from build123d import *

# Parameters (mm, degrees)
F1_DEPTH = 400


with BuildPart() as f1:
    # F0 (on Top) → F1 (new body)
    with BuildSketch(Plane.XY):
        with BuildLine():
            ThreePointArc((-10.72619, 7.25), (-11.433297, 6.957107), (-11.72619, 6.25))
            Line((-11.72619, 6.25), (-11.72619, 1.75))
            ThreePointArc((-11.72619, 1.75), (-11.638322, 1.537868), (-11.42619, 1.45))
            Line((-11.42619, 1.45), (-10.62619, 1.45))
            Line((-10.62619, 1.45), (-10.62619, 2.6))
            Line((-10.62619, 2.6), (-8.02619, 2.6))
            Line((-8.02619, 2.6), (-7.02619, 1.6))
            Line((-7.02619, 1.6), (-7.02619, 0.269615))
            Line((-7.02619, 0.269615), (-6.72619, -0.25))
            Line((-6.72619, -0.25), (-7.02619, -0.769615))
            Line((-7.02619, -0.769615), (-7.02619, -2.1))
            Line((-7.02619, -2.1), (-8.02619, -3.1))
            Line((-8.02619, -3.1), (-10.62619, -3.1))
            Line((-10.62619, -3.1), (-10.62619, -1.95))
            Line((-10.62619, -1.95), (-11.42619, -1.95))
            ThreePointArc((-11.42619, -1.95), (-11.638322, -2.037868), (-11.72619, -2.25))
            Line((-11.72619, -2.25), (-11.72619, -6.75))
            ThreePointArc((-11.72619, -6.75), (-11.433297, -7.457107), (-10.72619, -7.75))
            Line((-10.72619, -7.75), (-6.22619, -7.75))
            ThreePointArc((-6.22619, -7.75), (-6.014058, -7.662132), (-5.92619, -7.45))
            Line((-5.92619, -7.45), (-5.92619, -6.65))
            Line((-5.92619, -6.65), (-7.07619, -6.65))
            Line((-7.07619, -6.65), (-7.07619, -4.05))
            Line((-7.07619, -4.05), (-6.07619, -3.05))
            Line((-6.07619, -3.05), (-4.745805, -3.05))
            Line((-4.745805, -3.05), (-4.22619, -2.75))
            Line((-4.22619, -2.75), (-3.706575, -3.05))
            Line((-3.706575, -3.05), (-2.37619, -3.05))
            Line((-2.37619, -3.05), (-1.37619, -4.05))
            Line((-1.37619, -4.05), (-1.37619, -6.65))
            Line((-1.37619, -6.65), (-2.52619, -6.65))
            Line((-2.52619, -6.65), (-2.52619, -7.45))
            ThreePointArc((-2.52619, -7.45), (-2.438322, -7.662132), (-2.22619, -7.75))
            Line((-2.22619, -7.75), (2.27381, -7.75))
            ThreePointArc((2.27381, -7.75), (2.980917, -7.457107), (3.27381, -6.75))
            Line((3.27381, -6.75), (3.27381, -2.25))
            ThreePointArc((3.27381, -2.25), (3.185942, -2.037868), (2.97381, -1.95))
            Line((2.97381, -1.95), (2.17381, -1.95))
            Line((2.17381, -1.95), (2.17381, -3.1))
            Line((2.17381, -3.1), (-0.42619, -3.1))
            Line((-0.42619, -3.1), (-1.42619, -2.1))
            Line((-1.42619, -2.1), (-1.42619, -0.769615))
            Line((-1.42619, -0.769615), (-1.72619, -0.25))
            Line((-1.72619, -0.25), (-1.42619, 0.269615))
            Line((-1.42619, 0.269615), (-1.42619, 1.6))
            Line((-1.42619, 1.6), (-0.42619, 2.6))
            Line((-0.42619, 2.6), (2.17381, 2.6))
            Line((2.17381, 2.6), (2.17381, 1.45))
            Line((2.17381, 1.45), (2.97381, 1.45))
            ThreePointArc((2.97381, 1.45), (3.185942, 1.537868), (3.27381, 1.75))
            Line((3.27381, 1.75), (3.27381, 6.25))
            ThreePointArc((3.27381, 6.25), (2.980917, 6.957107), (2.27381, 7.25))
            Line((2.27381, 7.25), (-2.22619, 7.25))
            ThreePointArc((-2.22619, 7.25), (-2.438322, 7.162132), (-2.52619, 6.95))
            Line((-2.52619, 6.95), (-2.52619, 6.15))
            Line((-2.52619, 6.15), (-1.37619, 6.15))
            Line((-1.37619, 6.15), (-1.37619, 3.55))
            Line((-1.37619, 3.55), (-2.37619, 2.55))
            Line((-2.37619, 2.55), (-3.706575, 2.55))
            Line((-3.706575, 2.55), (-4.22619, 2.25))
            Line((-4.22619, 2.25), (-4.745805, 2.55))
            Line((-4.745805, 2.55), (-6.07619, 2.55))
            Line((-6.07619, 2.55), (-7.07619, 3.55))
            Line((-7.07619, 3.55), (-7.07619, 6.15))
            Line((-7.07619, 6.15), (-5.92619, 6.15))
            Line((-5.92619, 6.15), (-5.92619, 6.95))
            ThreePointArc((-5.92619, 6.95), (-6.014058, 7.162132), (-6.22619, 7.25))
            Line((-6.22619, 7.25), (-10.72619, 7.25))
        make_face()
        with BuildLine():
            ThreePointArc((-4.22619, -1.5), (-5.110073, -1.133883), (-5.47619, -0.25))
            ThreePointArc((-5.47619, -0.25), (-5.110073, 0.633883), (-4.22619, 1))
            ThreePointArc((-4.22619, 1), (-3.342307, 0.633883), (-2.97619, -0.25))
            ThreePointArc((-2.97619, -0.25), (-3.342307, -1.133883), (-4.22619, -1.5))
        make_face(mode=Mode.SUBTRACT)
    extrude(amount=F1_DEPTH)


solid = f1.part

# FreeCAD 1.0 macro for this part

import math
import FreeCAD as App
import Part
import Sketcher
Q = App.Units.Quantity

doc = App.newDocument("Part")
body = doc.addObject("PartDesign::Body", "Body")

# Sketch on XY plane
sketch1 = doc.addObject("Sketcher::SketchObject", "Sketch")
body.addObject(sketch1)
sketch1.AttachmentSupport = (doc.XY_Plane, [""])
sketch1.MapMode = "FlatFace"
sketch1.addGeometry([
    Part.ArcOfCircle(Part.Circle(App.Vector(-10.726191, 6.250001, 0), App.Vector(0, 0, 1), 0.999999), math.radians(89.999957), math.radians(180.000043)),  # 0
    Part.LineSegment(App.Vector(-11.72619, 6.25, 0), App.Vector(-11.72619, 1.75, 0)),  # 1
    Part.ArcOfCircle(Part.Circle(App.Vector(-11.42619, 1.75, 0), App.Vector(0, 0, 1), 0.3), math.radians(-179.999978), math.radians(-90.000022)),  # 2
    Part.LineSegment(App.Vector(-11.42619, 1.45, 0), App.Vector(-10.62619, 1.45, 0)),  # 3
    Part.LineSegment(App.Vector(-10.62619, 1.45, 0), App.Vector(-10.62619, 2.6, 0)),  # 4
    Part.LineSegment(App.Vector(-10.62619, 2.6, 0), App.Vector(-8.02619, 2.6, 0)),  # 5
    Part.LineSegment(App.Vector(-8.02619, 2.6, 0), App.Vector(-7.02619, 1.6, 0)),  # 6
    Part.LineSegment(App.Vector(-7.02619, 1.6, 0), App.Vector(-7.02619, 0.269615, 0)),  # 7
    Part.LineSegment(App.Vector(-7.02619, 0.269615, 0), App.Vector(-6.72619, -0.25, 0)),  # 8
    Part.LineSegment(App.Vector(-6.72619, -0.25, 0), App.Vector(-7.02619, -0.769615, 0)),  # 9
    Part.LineSegment(App.Vector(-7.02619, -0.769615, 0), App.Vector(-7.02619, -2.1, 0)),  # 10
    Part.LineSegment(App.Vector(-7.02619, -2.1, 0), App.Vector(-8.02619, -3.1, 0)),  # 11
    Part.LineSegment(App.Vector(-8.02619, -3.1, 0), App.Vector(-10.62619, -3.1, 0)),  # 12
    Part.LineSegment(App.Vector(-10.62619, -3.1, 0), App.Vector(-10.62619, -1.95, 0)),  # 13
    Part.LineSegment(App.Vector(-10.62619, -1.95, 0), App.Vector(-11.42619, -1.95, 0)),  # 14
    Part.ArcOfCircle(Part.Circle(App.Vector(-11.42619, -2.25, 0), App.Vector(0, 0, 1), 0.3), math.radians(90.000022), math.radians(179.999978)),  # 15
    Part.LineSegment(App.Vector(-11.72619, -2.25, 0), App.Vector(-11.72619, -6.75, 0)),  # 16
    Part.ArcOfCircle(Part.Circle(App.Vector(-10.726191, -6.750001, 0), App.Vector(0, 0, 1), 0.999999), math.radians(179.999957), math.radians(270.000043)),  # 17
    Part.LineSegment(App.Vector(-10.72619, -7.75, 0), App.Vector(-6.22619, -7.75, 0)),  # 18
    Part.ArcOfCircle(Part.Circle(App.Vector(-6.22619, -7.45, 0), App.Vector(0, 0, 1), 0.3), math.radians(-89.999978), math.radians(-0.000022)),  # 19
    Part.LineSegment(App.Vector(-5.92619, -7.45, 0), App.Vector(-5.92619, -6.65, 0)),  # 20
    Part.LineSegment(App.Vector(-5.92619, -6.65, 0), App.Vector(-7.07619, -6.65, 0)),  # 21
    Part.LineSegment(App.Vector(-7.07619, -6.65, 0), App.Vector(-7.07619, -4.05, 0)),  # 22
    Part.LineSegment(App.Vector(-7.07619, -4.05, 0), App.Vector(-6.07619, -3.05, 0)),  # 23
    Part.LineSegment(App.Vector(-6.07619, -3.05, 0), App.Vector(-4.745805, -3.05, 0)),  # 24
    Part.LineSegment(App.Vector(-4.745805, -3.05, 0), App.Vector(-4.22619, -2.75, 0)),  # 25
    Part.LineSegment(App.Vector(-4.22619, -2.75, 0), App.Vector(-3.706575, -3.05, 0)),  # 26
    Part.LineSegment(App.Vector(-3.706575, -3.05, 0), App.Vector(-2.37619, -3.05, 0)),  # 27
    Part.LineSegment(App.Vector(-2.37619, -3.05, 0), App.Vector(-1.37619, -4.05, 0)),  # 28
    Part.LineSegment(App.Vector(-1.37619, -4.05, 0), App.Vector(-1.37619, -6.65, 0)),  # 29
    Part.LineSegment(App.Vector(-1.37619, -6.65, 0), App.Vector(-2.52619, -6.65, 0)),  # 30
    Part.LineSegment(App.Vector(-2.52619, -6.65, 0), App.Vector(-2.52619, -7.45, 0)),  # 31
    Part.ArcOfCircle(Part.Circle(App.Vector(-2.22619, -7.45, 0), App.Vector(0, 0, 1), 0.3), math.radians(-179.999978), math.radians(-90.000022)),  # 32
    Part.LineSegment(App.Vector(-2.22619, -7.75, 0), App.Vector(2.27381, -7.75, 0)),  # 33
    Part.ArcOfCircle(Part.Circle(App.Vector(2.273811, -6.750001, 0), App.Vector(0, 0, 1), 0.999999), math.radians(-90.000043), math.radians(0.000043)),  # 34
    Part.LineSegment(App.Vector(3.27381, -6.75, 0), App.Vector(3.27381, -2.25, 0)),  # 35
    Part.ArcOfCircle(Part.Circle(App.Vector(2.97381, -2.25, 0), App.Vector(0, 0, 1), 0.3), math.radians(0.000022), math.radians(89.999978)),  # 36
    Part.LineSegment(App.Vector(2.97381, -1.95, 0), App.Vector(2.17381, -1.95, 0)),  # 37
    Part.LineSegment(App.Vector(2.17381, -1.95, 0), App.Vector(2.17381, -3.1, 0)),  # 38
    Part.LineSegment(App.Vector(2.17381, -3.1, 0), App.Vector(-0.42619, -3.1, 0)),  # 39
    Part.LineSegment(App.Vector(-0.42619, -3.1, 0), App.Vector(-1.42619, -2.1, 0)),  # 40
    Part.LineSegment(App.Vector(-1.42619, -2.1, 0), App.Vector(-1.42619, -0.769615, 0)),  # 41
    Part.LineSegment(App.Vector(-1.42619, -0.769615, 0), App.Vector(-1.72619, -0.25, 0)),  # 42
    Part.LineSegment(App.Vector(-1.72619, -0.25, 0), App.Vector(-1.42619, 0.269615, 0)),  # 43
    Part.LineSegment(App.Vector(-1.42619, 0.269615, 0), App.Vector(-1.42619, 1.6, 0)),  # 44
    Part.LineSegment(App.Vector(-1.42619, 1.6, 0), App.Vector(-0.42619, 2.6, 0)),  # 45
    Part.LineSegment(App.Vector(-0.42619, 2.6, 0), App.Vector(2.17381, 2.6, 0)),  # 46
    Part.LineSegment(App.Vector(2.17381, 2.6, 0), App.Vector(2.17381, 1.45, 0)),  # 47
    Part.LineSegment(App.Vector(2.17381, 1.45, 0), App.Vector(2.97381, 1.45, 0)),  # 48
    Part.ArcOfCircle(Part.Circle(App.Vector(2.97381, 1.75, 0), App.Vector(0, 0, 1), 0.3), math.radians(-89.999978), math.radians(-0.000022)),  # 49
    Part.LineSegment(App.Vector(3.27381, 1.75, 0), App.Vector(3.27381, 6.25, 0)),  # 50
    Part.ArcOfCircle(Part.Circle(App.Vector(2.273811, 6.250001, 0), App.Vector(0, 0, 1), 0.999999), math.radians(-0.000043), math.radians(90.000043)),  # 51
    Part.LineSegment(App.Vector(2.27381, 7.25, 0), App.Vector(-2.22619, 7.25, 0)),  # 52
    Part.ArcOfCircle(Part.Circle(App.Vector(-2.22619, 6.95, 0), App.Vector(0, 0, 1), 0.3), math.radians(90.000022), math.radians(179.999978)),  # 53
    Part.LineSegment(App.Vector(-2.52619, 6.95, 0), App.Vector(-2.52619, 6.15, 0)),  # 54
    Part.LineSegment(App.Vector(-2.52619, 6.15, 0), App.Vector(-1.37619, 6.15, 0)),  # 55
    Part.LineSegment(App.Vector(-1.37619, 6.15, 0), App.Vector(-1.37619, 3.55, 0)),  # 56
    Part.LineSegment(App.Vector(-1.37619, 3.55, 0), App.Vector(-2.37619, 2.55, 0)),  # 57
    Part.LineSegment(App.Vector(-2.37619, 2.55, 0), App.Vector(-3.706575, 2.55, 0)),  # 58
    Part.LineSegment(App.Vector(-3.706575, 2.55, 0), App.Vector(-4.22619, 2.25, 0)),  # 59
    Part.LineSegment(App.Vector(-4.22619, 2.25, 0), App.Vector(-4.745805, 2.55, 0)),  # 60
    Part.LineSegment(App.Vector(-4.745805, 2.55, 0), App.Vector(-6.07619, 2.55, 0)),  # 61
    Part.LineSegment(App.Vector(-6.07619, 2.55, 0), App.Vector(-7.07619, 3.55, 0)),  # 62
    Part.LineSegment(App.Vector(-7.07619, 3.55, 0), App.Vector(-7.07619, 6.15, 0)),  # 63
    Part.LineSegment(App.Vector(-7.07619, 6.15, 0), App.Vector(-5.92619, 6.15, 0)),  # 64
    Part.LineSegment(App.Vector(-5.92619, 6.15, 0), App.Vector(-5.92619, 6.95, 0)),  # 65
    Part.ArcOfCircle(Part.Circle(App.Vector(-6.22619, 6.95, 0), App.Vector(0, 0, 1), 0.3), math.radians(0.000022), math.radians(89.999978)),  # 66
    Part.LineSegment(App.Vector(-6.22619, 7.25, 0), App.Vector(-10.72619, 7.25, 0)),  # 67
    Part.ArcOfCircle(Part.Circle(App.Vector(-4.226192, -0.249998, 0), App.Vector(0, 0, 1), 1.250002), math.radians(-89.999925), math.radians(-0.000075)),  # 68
    Part.ArcOfCircle(Part.Circle(App.Vector(-4.226188, -0.249998, 0), App.Vector(0, 0, 1), 1.250002), math.radians(-179.999925), math.radians(-90.000075)),  # 69
    Part.ArcOfCircle(Part.Circle(App.Vector(-4.226188, -0.250002, 0), App.Vector(0, 0, 1), 1.250002), math.radians(90.000075), math.radians(179.999925)),  # 70
    Part.ArcOfCircle(Part.Circle(App.Vector(-4.226192, -0.250002, 0), App.Vector(0, 0, 1), 1.250002), math.radians(0.000075), math.radians(89.999925)),  # 71
], False)
sketch1.addConstraint([
    Sketcher.Constraint("Tangent", 0, 2, 1, 1),
    Sketcher.Constraint("Tangent", 1, 2, 2, 1),
    Sketcher.Constraint("Tangent", 2, 2, 3, 1),
    Sketcher.Constraint("Coincident", 3, 2, 4, 1),
    Sketcher.Constraint("Coincident", 4, 2, 5, 1),
    Sketcher.Constraint("Coincident", 5, 2, 6, 1),
    Sketcher.Constraint("Coincident", 6, 2, 7, 1),
    Sketcher.Constraint("Coincident", 7, 2, 8, 1),
    Sketcher.Constraint("Coincident", 8, 2, 9, 1),
    Sketcher.Constraint("Coincident", 9, 2, 10, 1),
    Sketcher.Constraint("Coincident", 10, 2, 11, 1),
    Sketcher.Constraint("Coincident", 11, 2, 12, 1),
    Sketcher.Constraint("Coincident", 12, 2, 13, 1),
    Sketcher.Constraint("Coincident", 13, 2, 14, 1),
    Sketcher.Constraint("Tangent", 14, 2, 15, 1),
    Sketcher.Constraint("Tangent", 15, 2, 16, 1),
    Sketcher.Constraint("Tangent", 16, 2, 17, 1),
    Sketcher.Constraint("Tangent", 17, 2, 18, 1),
    Sketcher.Constraint("Tangent", 18, 2, 19, 1),
    Sketcher.Constraint("Tangent", 19, 2, 20, 1),
    Sketcher.Constraint("Coincident", 20, 2, 21, 1),
    Sketcher.Constraint("Coincident", 21, 2, 22, 1),
    Sketcher.Constraint("Coincident", 22, 2, 23, 1),
    Sketcher.Constraint("Coincident", 23, 2, 24, 1),
    Sketcher.Constraint("Coincident", 24, 2, 25, 1),
    Sketcher.Constraint("Coincident", 25, 2, 26, 1),
    Sketcher.Constraint("Coincident", 26, 2, 27, 1),
    Sketcher.Constraint("Coincident", 27, 2, 28, 1),
    Sketcher.Constraint("Coincident", 28, 2, 29, 1),
    Sketcher.Constraint("Coincident", 29, 2, 30, 1),
    Sketcher.Constraint("Coincident", 30, 2, 31, 1),
    Sketcher.Constraint("Tangent", 31, 2, 32, 1),
    Sketcher.Constraint("Tangent", 32, 2, 33, 1),
    Sketcher.Constraint("Tangent", 33, 2, 34, 1),
    Sketcher.Constraint("Tangent", 34, 2, 35, 1),
    Sketcher.Constraint("Tangent", 35, 2, 36, 1),
    Sketcher.Constraint("Tangent", 36, 2, 37, 1),
    Sketcher.Constraint("Coincident", 37, 2, 38, 1),
    Sketcher.Constraint("Coincident", 38, 2, 39, 1),
    Sketcher.Constraint("Coincident", 39, 2, 40, 1),
    Sketcher.Constraint("Coincident", 40, 2, 41, 1),
    Sketcher.Constraint("Coincident", 41, 2, 42, 1),
    Sketcher.Constraint("Coincident", 42, 2, 43, 1),
    Sketcher.Constraint("Coincident", 43, 2, 44, 1),
    Sketcher.Constraint("Coincident", 44, 2, 45, 1),
    Sketcher.Constraint("Coincident", 45, 2, 46, 1),
    Sketcher.Constraint("Coincident", 46, 2, 47, 1),
    Sketcher.Constraint("Coincident", 47, 2, 48, 1),
    Sketcher.Constraint("Tangent", 48, 2, 49, 1),
    Sketcher.Constraint("Tangent", 49, 2, 50, 1),
    Sketcher.Constraint("Tangent", 50, 2, 51, 1),
    Sketcher.Constraint("Tangent", 51, 2, 52, 1),
    Sketcher.Constraint("Tangent", 52, 2, 53, 1),
    Sketcher.Constraint("Tangent", 53, 2, 54, 1),
    Sketcher.Constraint("Coincident", 54, 2, 55, 1),
    Sketcher.Constraint("Coincident", 55, 2, 56, 1),
    Sketcher.Constraint("Coincident", 56, 2, 57, 1),
    Sketcher.Constraint("Coincident", 57, 2, 58, 1),
    Sketcher.Constraint("Coincident", 58, 2, 59, 1),
    Sketcher.Constraint("Coincident", 59, 2, 60, 1),
    Sketcher.Constraint("Coincident", 60, 2, 61, 1),
    Sketcher.Constraint("Coincident", 61, 2, 62, 1),
    Sketcher.Constraint("Coincident", 62, 2, 63, 1),
    Sketcher.Constraint("Coincident", 63, 2, 64, 1),
    Sketcher.Constraint("Coincident", 64, 2, 65, 1),
    Sketcher.Constraint("Tangent", 65, 2, 66, 1),
    Sketcher.Constraint("Tangent", 66, 2, 67, 1),
    Sketcher.Constraint("Tangent", 67, 2, 0, 1),
    Sketcher.Constraint("Coincident", 68, 1, 69, 2),
    Sketcher.Constraint("Coincident", 69, 1, 70, 2),
    Sketcher.Constraint("Coincident", 70, 1, 71, 2),
    Sketcher.Constraint("Coincident", 71, 1, 68, 2),
    Sketcher.Constraint("Vertical", 1),
    Sketcher.Constraint("Horizontal", 3),
    Sketcher.Constraint("Vertical", 4),
    Sketcher.Constraint("Horizontal", 5),
    Sketcher.Constraint("Vertical", 7),
    Sketcher.Constraint("Vertical", 10),
    Sketcher.Constraint("Horizontal", 12),
    Sketcher.Constraint("Vertical", 13),
    Sketcher.Constraint("Horizontal", 14),
    Sketcher.Constraint("Vertical", 16),
    Sketcher.Constraint("Horizontal", 18),
    Sketcher.Constraint("Vertical", 20),
    Sketcher.Constraint("Horizontal", 21),
    Sketcher.Constraint("Vertical", 22),
    Sketcher.Constraint("Horizontal", 24),
    Sketcher.Constraint("Horizontal", 27),
    Sketcher.Constraint("Vertical", 29),
    Sketcher.Constraint("Horizontal", 30),
    Sketcher.Constraint("Vertical", 31),
    Sketcher.Constraint("Horizontal", 33),
    Sketcher.Constraint("Vertical", 35),
    Sketcher.Constraint("Horizontal", 37),
    Sketcher.Constraint("Vertical", 38),
    Sketcher.Constraint("Horizontal", 39),
    Sketcher.Constraint("Vertical", 41),
    Sketcher.Constraint("Vertical", 44),
    Sketcher.Constraint("Horizontal", 46),
    Sketcher.Constraint("Vertical", 47),
    Sketcher.Constraint("Horizontal", 48),
    Sketcher.Constraint("Vertical", 50),
    Sketcher.Constraint("Horizontal", 52),
    Sketcher.Constraint("Vertical", 54),
    Sketcher.Constraint("Horizontal", 55),
    Sketcher.Constraint("Vertical", 56),
    Sketcher.Constraint("Horizontal", 58),
    Sketcher.Constraint("Horizontal", 61),
    Sketcher.Constraint("Vertical", 63),
    Sketcher.Constraint("Horizontal", 64),
    Sketcher.Constraint("Vertical", 65),
    Sketcher.Constraint("Horizontal", 67),
    Sketcher.Constraint("Coincident", 69, 3, 68, 3),
    Sketcher.Constraint("Coincident", 70, 3, 68, 3),
    Sketcher.Constraint("Equal", 2, 15),
    Sketcher.Constraint("Equal", 0, 17),
    Sketcher.Constraint("Equal", 15, 19),
    Sketcher.Constraint("Equal", 19, 32),
    Sketcher.Constraint("Equal", 17, 34),
    Sketcher.Constraint("Equal", 32, 36),
    Sketcher.Constraint("Equal", 36, 49),
    Sketcher.Constraint("Equal", 34, 51),
    Sketcher.Constraint("Equal", 49, 53),
    Sketcher.Constraint("Equal", 53, 66),
    Sketcher.Constraint("Equal", 70, 71),
    Sketcher.Constraint("Perpendicular", 6, 11),
    Sketcher.Constraint("Parallel", 11, 23),
    Sketcher.Constraint("Perpendicular", 8, 25),
    Sketcher.Constraint("Perpendicular", 9, 26),
    Sketcher.Constraint("Perpendicular", 23, 28),
    Sketcher.Constraint("Parallel", 28, 40),
    Sketcher.Constraint("Perpendicular", 25, 42),
    Sketcher.Constraint("Perpendicular", 26, 43),
    Sketcher.Constraint("Perpendicular", 40, 45),
    Sketcher.Constraint("Parallel", 45, 57),
    Sketcher.Constraint("Perpendicular", 42, 59),
    Sketcher.Constraint("Perpendicular", 43, 60),
    Sketcher.Constraint("Perpendicular", 57, 62),
    Sketcher.Constraint("Horizontal", 19, 3, 32, 3),
    Sketcher.Constraint("Horizontal", 15, 3, 36, 3),
    Sketcher.Constraint("Horizontal", 2, 3, 49, 3),
    Sketcher.Constraint("Horizontal", 0, 3, 51, 3),
    Sketcher.Constraint("Horizontal", 71, 3, 8, 2),
    Sketcher.Constraint("Horizontal", 24, 2, 26, 2),
    Sketcher.Constraint("Horizontal", 22, 2, 28, 2),
    Sketcher.Constraint("Horizontal", 21, 2, 29, 2),
    Sketcher.Constraint("Horizontal", 12, 2, 38, 2),
    Sketcher.Constraint("Horizontal", 10, 2, 40, 2),
    Sketcher.Constraint("Horizontal", 9, 2, 41, 2),
    Sketcher.Constraint("Horizontal", 8, 2, 42, 2),
    Sketcher.Constraint("Horizontal", 7, 2, 43, 2),
    Sketcher.Constraint("Horizontal", 6, 2, 44, 2),
    Sketcher.Constraint("Horizontal", 5, 2, 45, 2),
    Sketcher.Constraint("Horizontal", 58, 2, 60, 2),
    Sketcher.Constraint("Horizontal", 56, 2, 62, 2),
    Sketcher.Constraint("Horizontal", 55, 2, 63, 2),
    Sketcher.Constraint("Horizontal", 42, 2, 69, 1),
    Sketcher.Constraint("Horizontal", 69, 1, 71, 1),
    Sketcher.Constraint("Vertical", 2, 3, 15, 3),
    Sketcher.Constraint("Vertical", 36, 3, 49, 3),
    Sketcher.Constraint("Vertical", 32, 3, 53, 3),
    Sketcher.Constraint("Vertical", 19, 3, 66, 3),
    Sketcher.Constraint("Vertical", 7, 2, 9, 2),
    Sketcher.Constraint("Vertical", 5, 2, 11, 2),
    Sketcher.Constraint("Vertical", 4, 2, 12, 2),
    Sketcher.Constraint("Vertical", 71, 3, 25, 2),
    Sketcher.Constraint("Vertical", 41, 2, 43, 2),
    Sketcher.Constraint("Vertical", 39, 2, 45, 2),
    Sketcher.Constraint("Vertical", 38, 2, 46, 2),
    Sketcher.Constraint("Vertical", 29, 2, 55, 2),
    Sketcher.Constraint("Vertical", 27, 2, 57, 2),
    Sketcher.Constraint("Vertical", 26, 2, 58, 2),
    Sketcher.Constraint("Vertical", 25, 2, 59, 2),
    Sketcher.Constraint("Vertical", 23, 2, 61, 2),
    Sketcher.Constraint("Vertical", 59, 2, 68, 1),
    Sketcher.Constraint("Vertical", 68, 1, 70, 1),
    Sketcher.Constraint("Equal", 24, 27),
    Sketcher.Constraint("Equal", 21, 30),
    Sketcher.Constraint("Equal", 18, 33),
    Sketcher.Constraint("Equal", 14, 37),
    Sketcher.Constraint("Equal", 12, 39),
    Sketcher.Constraint("Equal", 67, 1),
    Sketcher.Constraint("Equal", 64, 4),
    Sketcher.Constraint("Equal", 61, 7),
    Sketcher.Constraint("Equal", 7, 10),
    Sketcher.Constraint("Equal", 4, 13),
    Sketcher.Constraint("Equal", 1, 16),
    Sketcher.Constraint("Equal", 48, 20),
    Sketcher.Constraint("Equal", 46, 22),
    Sketcher.Constraint("Equal", 31, 54),
    Sketcher.Constraint("Equal", 29, 56),
    Sketcher.Constraint("Equal", 11, 23),
    Sketcher.Constraint("Equal", 9, 25),
    Sketcher.Constraint("Radius", 0, 0.999999),
    Sketcher.Constraint("Radius", 2, 0.3),
    Sketcher.Constraint("Angle", 8, Q("-59.999988 deg")),
    Sketcher.Constraint("Radius", 68, 1.250002),
    Sketcher.Constraint("DistanceX", 3, 1, 3, 2, 0.8),
    Sketcher.Constraint("DistanceX", 5, 1, 5, 2, 2.6),
    Sketcher.Constraint("DistanceX", 18, 1, 18, 2, 4.5),
    Sketcher.Constraint("DistanceY", -1, 1, 70, 1, 1.0),
    Sketcher.Constraint("Distance", 8, 0.6),
    Sketcher.Constraint("DistanceX", 21, 2, 21, 1, 1.15),
    Sketcher.Constraint("DistanceY", -1, 1, 4, 2, 2.6),
    Sketcher.Constraint("DistanceY", -1, 1, 6, 2, 1.6),
    Sketcher.Constraint("DistanceX", 0, 3, -1, 1, 10.726191),
])
pad1 = doc.addObject("PartDesign::Pad", "Pad")
body.addObject(pad1)
pad1.Profile = sketch1
pad1.Length = 400

doc.recompute()
